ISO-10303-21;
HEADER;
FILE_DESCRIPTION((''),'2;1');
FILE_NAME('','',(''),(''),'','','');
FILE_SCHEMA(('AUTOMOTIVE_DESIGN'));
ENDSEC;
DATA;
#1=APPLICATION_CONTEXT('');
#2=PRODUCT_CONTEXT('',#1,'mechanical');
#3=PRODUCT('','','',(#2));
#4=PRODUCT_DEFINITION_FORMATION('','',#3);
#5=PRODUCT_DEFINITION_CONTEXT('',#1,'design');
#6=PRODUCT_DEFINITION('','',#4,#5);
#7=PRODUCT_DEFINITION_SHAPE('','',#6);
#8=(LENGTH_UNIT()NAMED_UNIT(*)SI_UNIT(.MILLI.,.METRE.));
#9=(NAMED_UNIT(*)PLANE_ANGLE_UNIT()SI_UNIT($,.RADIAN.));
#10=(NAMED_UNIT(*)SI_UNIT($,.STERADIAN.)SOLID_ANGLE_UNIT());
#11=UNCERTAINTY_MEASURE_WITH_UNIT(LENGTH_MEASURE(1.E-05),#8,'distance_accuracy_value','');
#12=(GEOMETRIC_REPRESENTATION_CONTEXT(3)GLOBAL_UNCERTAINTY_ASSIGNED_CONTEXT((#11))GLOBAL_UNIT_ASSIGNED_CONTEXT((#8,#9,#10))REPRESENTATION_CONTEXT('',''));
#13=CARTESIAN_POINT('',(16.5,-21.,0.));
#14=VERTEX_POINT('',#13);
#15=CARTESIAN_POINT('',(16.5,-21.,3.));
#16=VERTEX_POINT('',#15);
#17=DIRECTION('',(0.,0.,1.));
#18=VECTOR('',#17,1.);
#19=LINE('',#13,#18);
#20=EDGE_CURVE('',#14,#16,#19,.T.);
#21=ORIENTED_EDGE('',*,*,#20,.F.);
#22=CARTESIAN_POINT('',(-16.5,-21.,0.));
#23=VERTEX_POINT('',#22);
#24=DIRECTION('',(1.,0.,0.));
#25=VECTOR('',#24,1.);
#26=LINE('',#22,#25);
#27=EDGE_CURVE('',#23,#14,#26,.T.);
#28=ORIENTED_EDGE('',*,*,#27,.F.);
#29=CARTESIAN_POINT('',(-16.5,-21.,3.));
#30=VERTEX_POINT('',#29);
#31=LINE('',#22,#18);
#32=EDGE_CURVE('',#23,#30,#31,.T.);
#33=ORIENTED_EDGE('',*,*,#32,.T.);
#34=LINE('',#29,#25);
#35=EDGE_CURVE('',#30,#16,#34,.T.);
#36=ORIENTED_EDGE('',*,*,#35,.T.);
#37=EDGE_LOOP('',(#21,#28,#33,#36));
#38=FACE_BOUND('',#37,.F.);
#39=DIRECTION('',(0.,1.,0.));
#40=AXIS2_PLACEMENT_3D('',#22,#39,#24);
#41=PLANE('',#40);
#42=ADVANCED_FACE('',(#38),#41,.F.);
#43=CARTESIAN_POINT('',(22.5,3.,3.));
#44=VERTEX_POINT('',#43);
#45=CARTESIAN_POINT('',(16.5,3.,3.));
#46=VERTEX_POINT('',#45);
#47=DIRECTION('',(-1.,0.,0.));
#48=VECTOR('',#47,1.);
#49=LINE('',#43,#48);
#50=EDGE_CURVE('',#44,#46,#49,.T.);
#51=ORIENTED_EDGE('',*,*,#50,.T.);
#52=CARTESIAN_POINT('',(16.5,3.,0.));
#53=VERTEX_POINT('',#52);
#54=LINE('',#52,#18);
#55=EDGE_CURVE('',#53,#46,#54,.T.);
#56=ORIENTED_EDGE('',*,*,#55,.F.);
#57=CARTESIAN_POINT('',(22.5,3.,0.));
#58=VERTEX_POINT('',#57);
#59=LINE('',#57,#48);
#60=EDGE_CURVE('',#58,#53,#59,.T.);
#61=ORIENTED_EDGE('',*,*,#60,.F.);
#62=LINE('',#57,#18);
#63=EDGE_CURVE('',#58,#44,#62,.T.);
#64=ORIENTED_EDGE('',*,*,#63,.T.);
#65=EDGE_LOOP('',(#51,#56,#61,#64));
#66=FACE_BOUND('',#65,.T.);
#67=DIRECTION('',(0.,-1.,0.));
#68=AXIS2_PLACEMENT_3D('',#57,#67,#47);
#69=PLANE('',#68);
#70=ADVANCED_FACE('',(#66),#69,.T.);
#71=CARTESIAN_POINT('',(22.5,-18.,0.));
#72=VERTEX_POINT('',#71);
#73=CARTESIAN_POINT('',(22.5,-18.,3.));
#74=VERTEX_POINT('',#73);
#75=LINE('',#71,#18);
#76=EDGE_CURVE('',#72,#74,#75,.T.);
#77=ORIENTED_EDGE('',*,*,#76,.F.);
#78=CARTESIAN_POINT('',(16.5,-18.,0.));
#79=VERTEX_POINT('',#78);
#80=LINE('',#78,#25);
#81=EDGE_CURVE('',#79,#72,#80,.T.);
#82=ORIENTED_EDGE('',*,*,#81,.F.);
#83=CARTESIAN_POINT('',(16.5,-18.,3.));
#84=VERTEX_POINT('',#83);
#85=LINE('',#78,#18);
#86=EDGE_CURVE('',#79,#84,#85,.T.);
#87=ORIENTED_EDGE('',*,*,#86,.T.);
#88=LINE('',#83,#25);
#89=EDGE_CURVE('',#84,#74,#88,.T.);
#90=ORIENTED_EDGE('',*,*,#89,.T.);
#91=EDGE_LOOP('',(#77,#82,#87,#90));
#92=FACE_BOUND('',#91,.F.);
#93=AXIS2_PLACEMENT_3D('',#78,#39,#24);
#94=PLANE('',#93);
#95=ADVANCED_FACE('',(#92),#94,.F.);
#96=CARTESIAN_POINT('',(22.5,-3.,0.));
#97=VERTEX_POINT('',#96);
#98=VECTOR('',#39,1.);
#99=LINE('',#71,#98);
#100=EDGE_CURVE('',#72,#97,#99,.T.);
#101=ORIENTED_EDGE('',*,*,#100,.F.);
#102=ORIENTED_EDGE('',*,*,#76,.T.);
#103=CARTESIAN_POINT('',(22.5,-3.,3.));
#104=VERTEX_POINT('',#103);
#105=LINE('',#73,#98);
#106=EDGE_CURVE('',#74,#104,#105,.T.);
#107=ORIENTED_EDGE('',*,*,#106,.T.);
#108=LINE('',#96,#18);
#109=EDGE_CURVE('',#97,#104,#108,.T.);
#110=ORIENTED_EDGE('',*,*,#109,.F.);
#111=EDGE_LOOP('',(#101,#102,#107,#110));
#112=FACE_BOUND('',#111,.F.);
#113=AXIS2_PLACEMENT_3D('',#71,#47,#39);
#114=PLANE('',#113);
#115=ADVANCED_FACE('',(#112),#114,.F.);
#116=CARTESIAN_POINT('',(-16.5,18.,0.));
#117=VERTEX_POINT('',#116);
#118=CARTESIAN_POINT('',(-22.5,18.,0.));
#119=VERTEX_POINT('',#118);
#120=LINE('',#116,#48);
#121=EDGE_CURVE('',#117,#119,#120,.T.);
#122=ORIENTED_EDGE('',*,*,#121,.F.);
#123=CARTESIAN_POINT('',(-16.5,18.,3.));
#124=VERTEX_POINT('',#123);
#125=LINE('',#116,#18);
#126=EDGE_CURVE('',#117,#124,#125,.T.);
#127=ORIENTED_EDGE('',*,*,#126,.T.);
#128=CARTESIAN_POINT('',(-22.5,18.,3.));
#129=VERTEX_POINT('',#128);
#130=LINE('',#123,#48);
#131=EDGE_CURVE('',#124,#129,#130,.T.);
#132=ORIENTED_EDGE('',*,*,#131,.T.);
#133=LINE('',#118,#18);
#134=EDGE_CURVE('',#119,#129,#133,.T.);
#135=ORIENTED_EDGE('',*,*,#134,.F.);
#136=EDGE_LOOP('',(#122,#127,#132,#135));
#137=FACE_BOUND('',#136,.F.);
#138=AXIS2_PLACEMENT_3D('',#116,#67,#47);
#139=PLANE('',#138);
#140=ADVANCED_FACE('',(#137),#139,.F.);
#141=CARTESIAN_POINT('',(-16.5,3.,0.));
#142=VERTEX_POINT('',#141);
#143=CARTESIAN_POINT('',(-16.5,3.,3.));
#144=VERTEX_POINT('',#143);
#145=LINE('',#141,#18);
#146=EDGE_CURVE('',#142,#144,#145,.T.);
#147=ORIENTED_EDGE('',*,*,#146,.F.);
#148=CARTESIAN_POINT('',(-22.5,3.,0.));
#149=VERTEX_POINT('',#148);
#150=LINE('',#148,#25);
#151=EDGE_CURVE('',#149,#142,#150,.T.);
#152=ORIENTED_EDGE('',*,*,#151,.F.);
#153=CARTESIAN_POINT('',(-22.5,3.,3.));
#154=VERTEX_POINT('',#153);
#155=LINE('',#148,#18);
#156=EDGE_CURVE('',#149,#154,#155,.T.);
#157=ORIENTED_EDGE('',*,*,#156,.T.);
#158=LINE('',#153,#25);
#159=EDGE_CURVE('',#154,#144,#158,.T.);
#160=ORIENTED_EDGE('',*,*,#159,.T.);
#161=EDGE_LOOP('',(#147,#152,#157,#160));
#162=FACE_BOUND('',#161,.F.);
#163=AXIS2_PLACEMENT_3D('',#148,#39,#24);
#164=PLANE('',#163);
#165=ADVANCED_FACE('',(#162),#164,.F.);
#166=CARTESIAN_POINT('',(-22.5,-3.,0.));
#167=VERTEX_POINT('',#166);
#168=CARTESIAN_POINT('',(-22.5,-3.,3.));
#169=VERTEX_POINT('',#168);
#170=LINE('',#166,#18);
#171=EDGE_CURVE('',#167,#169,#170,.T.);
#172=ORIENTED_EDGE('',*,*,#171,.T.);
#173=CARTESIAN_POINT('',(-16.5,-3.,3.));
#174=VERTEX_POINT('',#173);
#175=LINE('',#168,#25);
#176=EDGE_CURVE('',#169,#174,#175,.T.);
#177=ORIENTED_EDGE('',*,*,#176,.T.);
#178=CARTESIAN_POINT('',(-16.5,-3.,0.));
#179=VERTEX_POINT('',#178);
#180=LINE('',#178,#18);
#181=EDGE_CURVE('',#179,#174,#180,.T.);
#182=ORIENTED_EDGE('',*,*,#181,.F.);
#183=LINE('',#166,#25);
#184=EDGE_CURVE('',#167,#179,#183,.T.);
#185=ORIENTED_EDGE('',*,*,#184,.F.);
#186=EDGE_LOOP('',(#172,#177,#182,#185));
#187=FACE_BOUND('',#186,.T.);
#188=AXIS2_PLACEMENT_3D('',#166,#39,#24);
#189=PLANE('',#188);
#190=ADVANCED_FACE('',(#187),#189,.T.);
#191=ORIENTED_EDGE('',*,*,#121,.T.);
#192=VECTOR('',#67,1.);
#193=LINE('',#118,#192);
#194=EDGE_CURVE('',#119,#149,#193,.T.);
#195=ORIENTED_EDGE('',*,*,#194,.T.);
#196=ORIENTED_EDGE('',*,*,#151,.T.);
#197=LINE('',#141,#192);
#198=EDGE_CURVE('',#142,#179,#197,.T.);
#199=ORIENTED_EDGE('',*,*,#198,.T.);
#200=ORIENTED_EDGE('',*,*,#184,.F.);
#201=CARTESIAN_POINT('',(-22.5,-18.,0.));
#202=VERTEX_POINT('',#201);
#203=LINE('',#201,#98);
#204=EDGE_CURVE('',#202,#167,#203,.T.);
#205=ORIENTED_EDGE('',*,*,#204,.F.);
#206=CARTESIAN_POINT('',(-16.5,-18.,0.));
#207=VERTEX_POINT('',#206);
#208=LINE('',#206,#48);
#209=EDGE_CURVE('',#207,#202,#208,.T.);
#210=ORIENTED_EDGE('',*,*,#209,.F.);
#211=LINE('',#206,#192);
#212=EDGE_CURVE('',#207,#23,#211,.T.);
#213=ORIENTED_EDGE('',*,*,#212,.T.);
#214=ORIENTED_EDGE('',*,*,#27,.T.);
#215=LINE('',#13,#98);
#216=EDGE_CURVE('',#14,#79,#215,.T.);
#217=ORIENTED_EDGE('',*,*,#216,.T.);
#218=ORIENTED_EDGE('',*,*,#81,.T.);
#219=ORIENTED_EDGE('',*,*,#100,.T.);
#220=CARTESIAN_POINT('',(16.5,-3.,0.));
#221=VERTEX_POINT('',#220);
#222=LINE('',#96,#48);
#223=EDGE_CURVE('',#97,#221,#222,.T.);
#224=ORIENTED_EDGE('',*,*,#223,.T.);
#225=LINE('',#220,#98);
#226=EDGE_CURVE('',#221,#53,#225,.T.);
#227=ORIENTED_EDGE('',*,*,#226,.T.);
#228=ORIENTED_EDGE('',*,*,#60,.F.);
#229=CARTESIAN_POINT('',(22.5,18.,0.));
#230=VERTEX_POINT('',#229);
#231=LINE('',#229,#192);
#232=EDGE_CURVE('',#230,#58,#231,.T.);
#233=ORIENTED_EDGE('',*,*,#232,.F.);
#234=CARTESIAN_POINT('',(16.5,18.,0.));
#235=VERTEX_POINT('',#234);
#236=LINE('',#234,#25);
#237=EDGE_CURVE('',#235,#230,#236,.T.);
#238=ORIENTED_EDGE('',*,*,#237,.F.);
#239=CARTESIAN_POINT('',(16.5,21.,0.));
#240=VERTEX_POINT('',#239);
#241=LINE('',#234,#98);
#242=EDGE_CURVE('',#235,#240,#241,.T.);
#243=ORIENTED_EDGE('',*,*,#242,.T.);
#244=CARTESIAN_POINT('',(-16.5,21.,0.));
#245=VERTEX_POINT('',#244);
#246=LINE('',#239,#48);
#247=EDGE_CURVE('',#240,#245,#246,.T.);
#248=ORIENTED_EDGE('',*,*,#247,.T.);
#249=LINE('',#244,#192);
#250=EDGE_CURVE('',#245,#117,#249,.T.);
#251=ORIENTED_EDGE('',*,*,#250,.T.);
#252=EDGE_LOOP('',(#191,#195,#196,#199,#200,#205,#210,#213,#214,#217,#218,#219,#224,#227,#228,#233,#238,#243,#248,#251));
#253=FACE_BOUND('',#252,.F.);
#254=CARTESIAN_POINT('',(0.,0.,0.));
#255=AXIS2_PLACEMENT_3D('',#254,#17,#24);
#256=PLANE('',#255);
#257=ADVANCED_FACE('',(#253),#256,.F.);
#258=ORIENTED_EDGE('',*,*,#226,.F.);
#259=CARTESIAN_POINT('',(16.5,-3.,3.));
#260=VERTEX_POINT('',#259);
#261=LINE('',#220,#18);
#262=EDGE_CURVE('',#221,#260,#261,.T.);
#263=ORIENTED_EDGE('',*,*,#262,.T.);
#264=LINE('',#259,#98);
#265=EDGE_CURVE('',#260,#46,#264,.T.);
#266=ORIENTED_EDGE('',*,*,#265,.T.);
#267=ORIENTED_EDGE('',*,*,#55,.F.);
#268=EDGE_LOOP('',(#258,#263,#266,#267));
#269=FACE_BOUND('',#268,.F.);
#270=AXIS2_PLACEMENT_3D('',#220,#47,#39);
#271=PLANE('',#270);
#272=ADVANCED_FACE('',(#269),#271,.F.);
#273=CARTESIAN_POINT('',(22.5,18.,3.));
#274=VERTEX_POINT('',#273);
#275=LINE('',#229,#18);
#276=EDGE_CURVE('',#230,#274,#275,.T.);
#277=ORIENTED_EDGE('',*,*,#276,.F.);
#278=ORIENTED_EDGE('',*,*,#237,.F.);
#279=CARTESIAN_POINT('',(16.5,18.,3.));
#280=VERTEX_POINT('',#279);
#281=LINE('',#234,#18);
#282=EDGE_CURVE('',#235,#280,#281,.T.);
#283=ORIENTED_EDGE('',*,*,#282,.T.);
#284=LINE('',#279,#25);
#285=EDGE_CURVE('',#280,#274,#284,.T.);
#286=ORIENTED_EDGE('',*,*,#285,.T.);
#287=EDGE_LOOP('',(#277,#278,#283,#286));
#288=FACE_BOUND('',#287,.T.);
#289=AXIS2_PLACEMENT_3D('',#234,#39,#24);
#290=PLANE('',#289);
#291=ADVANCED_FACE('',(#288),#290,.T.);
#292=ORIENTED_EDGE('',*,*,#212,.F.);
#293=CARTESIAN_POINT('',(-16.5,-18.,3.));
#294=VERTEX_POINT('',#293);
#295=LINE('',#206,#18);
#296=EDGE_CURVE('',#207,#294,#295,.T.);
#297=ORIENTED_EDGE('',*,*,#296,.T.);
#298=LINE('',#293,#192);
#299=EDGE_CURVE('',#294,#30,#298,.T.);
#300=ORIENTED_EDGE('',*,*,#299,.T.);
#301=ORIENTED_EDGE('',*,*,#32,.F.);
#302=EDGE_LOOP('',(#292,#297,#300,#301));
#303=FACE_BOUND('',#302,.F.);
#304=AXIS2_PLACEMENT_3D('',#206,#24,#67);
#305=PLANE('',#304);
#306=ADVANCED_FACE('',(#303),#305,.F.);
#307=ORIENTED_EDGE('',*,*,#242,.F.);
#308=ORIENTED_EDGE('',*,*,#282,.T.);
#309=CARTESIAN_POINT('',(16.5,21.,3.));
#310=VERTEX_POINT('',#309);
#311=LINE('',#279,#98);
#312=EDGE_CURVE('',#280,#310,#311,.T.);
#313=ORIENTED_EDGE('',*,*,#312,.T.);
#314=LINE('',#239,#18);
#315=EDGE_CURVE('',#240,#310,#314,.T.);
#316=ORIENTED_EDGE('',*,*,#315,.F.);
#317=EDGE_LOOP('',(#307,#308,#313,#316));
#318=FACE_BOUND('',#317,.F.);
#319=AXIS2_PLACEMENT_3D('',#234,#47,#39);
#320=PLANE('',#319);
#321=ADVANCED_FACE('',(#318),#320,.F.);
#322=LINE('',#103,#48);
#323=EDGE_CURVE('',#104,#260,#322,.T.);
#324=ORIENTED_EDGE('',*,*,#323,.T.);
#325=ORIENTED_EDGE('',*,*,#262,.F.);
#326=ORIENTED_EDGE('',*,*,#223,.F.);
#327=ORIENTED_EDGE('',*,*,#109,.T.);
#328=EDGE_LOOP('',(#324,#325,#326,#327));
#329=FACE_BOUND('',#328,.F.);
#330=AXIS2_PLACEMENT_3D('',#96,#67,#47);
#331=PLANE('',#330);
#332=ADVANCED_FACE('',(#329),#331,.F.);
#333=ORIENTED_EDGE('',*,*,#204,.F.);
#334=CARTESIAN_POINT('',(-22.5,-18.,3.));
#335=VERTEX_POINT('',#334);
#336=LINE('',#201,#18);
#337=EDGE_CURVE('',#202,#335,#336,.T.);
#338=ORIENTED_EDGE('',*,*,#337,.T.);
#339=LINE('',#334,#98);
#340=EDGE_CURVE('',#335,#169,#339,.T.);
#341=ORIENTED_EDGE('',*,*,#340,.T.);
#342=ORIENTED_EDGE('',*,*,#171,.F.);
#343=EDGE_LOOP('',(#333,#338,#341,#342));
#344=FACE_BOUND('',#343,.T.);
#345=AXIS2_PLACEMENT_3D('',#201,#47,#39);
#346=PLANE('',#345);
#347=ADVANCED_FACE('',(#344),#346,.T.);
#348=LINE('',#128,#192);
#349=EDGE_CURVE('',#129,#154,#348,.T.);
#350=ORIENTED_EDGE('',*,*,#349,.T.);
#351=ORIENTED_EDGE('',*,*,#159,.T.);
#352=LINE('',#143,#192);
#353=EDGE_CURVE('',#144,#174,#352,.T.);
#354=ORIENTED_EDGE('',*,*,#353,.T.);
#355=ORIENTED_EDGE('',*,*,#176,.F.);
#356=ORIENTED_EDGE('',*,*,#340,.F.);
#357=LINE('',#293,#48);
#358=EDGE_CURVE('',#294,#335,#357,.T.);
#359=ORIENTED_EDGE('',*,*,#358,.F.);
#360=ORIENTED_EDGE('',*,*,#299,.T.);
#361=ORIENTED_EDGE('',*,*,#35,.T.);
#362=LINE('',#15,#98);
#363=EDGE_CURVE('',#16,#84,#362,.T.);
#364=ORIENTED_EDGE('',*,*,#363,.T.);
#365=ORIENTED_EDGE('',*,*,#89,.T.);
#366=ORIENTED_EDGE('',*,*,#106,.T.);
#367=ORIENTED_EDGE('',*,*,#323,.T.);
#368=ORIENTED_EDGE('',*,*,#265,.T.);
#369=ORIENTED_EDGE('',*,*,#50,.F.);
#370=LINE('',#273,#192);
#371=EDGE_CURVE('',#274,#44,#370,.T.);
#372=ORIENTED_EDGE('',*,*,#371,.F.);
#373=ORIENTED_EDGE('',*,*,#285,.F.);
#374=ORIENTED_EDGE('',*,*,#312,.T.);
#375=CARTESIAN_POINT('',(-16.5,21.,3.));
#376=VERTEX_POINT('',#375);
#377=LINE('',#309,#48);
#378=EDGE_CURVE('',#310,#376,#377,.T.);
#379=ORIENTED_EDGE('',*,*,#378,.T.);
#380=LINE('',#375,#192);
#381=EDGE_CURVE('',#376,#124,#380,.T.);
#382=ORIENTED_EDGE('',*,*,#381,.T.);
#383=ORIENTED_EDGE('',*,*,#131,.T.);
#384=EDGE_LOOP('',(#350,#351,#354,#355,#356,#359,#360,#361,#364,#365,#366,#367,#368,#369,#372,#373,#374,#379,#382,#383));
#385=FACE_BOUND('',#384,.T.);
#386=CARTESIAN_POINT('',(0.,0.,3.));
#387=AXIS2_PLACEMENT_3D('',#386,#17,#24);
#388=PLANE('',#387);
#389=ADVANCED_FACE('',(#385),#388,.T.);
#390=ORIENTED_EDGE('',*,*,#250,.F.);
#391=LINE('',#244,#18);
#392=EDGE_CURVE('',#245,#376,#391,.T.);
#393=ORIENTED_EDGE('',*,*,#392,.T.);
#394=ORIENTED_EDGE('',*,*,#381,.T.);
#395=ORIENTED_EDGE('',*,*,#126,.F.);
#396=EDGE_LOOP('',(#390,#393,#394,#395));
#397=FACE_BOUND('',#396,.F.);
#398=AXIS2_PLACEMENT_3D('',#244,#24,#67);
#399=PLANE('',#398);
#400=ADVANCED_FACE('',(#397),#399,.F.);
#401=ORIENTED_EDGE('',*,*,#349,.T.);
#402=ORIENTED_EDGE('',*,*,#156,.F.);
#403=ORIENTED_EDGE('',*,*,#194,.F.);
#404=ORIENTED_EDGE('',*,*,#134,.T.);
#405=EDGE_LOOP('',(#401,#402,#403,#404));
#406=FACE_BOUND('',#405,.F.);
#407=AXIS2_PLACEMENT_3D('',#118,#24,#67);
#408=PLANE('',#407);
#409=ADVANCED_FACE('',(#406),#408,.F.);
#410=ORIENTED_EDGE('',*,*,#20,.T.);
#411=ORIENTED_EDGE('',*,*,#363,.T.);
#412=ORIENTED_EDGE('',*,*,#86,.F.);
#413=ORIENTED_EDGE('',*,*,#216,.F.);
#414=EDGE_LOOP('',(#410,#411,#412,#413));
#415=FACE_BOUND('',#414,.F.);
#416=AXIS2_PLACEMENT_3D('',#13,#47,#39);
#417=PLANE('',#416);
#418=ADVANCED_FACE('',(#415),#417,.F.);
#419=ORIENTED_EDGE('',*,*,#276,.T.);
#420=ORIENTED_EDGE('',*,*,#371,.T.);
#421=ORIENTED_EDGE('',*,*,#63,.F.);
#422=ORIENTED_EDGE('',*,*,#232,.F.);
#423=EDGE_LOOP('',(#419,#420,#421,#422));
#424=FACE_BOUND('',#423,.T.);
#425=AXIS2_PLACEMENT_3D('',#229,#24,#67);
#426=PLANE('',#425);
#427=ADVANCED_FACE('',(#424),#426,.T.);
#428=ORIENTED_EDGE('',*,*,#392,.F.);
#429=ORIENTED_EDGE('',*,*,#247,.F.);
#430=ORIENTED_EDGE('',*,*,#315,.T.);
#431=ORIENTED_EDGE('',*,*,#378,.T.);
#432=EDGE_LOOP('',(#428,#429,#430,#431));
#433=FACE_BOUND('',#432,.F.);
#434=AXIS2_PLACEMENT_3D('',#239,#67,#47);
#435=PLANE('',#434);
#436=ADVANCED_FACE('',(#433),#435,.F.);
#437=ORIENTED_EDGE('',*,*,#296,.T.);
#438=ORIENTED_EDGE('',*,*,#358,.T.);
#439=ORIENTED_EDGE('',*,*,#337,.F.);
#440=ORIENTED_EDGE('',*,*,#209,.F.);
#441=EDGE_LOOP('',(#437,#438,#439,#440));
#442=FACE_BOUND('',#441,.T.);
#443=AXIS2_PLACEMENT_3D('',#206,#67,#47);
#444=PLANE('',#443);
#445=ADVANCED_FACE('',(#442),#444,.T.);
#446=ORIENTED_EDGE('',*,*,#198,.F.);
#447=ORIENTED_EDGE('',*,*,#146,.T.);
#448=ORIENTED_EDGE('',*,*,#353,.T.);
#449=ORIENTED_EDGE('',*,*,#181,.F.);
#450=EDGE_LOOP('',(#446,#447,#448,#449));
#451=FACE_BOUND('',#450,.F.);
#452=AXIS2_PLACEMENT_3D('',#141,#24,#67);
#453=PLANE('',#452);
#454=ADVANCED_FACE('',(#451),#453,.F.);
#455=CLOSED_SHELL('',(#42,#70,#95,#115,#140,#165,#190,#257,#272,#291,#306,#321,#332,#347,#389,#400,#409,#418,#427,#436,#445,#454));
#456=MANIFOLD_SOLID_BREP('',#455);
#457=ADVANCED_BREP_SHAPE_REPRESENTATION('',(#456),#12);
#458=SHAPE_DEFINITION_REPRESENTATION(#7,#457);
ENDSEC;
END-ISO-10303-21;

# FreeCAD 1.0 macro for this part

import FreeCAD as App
import Part
import Sketcher
Q = App.Units.Quantity


def add_polygon(sketch, points):
    """Adds a closed chain of lines whose ends are joined by coincident constraints."""
    first, n = sketch.GeometryCount, len(points)
    for a, b in zip(points, points[1:] + points[:1]):
        sketch.addGeometry(Part.LineSegment(App.Vector(*a, 0), App.Vector(*b, 0)), False)
    for i in range(n):
        sketch.addConstraint(Sketcher.Constraint("Coincident", first + i, 2, first + (i + 1) % n, 1))

doc = App.newDocument("Part")
body = doc.addObject("PartDesign::Body", "Body")

# Sketch on XY plane
sketch1 = body.newObject("Sketcher::SketchObject", "Sketch")
sketch1.AttachmentSupport = (doc.getObject("XY_Plane"), [""])
sketch1.MapMode = "FlatFace"
add_polygon(sketch1, [(16.5, 18), (16.5, 21), (-16.5, 21), (-16.5, 18), (-22.5, 18), (-22.5, 3), (-16.5, 3), (-16.5, -3), (-22.5, -3), (-22.5, -18), (-16.5, -18), (-16.5, -21), (16.5, -21), (16.5, -18), (22.5, -18), (22.5, -3), (16.5, -3), (16.5, 3), (22.5, 3), (22.5, 18)])  # lines 0-19
sketch1.addConstraint(Sketcher.Constraint("Vertical", 0))
sketch1.addConstraint(Sketcher.Constraint("Horizontal", 1))
sketch1.addConstraint(Sketcher.Constraint("Vertical", 2))
sketch1.addConstraint(Sketcher.Constraint("Horizontal", 3))
sketch1.addConstraint(Sketcher.Constraint("Vertical", 4))
sketch1.addConstraint(Sketcher.Constraint("Horizontal", 5))
sketch1.addConstraint(Sketcher.Constraint("Vertical", 6))
sketch1.addConstraint(Sketcher.Constraint("Horizontal", 7))
sketch1.addConstraint(Sketcher.Constraint("Vertical", 8))
sketch1.addConstraint(Sketcher.Constraint("Horizontal", 9))
sketch1.addConstraint(Sketcher.Constraint("Vertical", 10))
sketch1.addConstraint(Sketcher.Constraint("Horizontal", 11))
sketch1.addConstraint(Sketcher.Constraint("Vertical", 12))
sketch1.addConstraint(Sketcher.Constraint("Horizontal", 13))
sketch1.addConstraint(Sketcher.Constraint("Vertical", 14))
sketch1.addConstraint(Sketcher.Constraint("Horizontal", 15))
sketch1.addConstraint(Sketcher.Constraint("Vertical", 16))
sketch1.addConstraint(Sketcher.Constraint("Horizontal", 17))
sketch1.addConstraint(Sketcher.Constraint("Vertical", 18))
sketch1.addConstraint(Sketcher.Constraint("Horizontal", 19))
sketch1.addConstraint(Sketcher.Constraint("Symmetric", 0, 2, 10, 2, -1, 1))
sketch1.addConstraint(Sketcher.Constraint("Symmetric", 2, 2, 12, 2, -1, 1))
sketch1.addConstraint(Sketcher.Constraint("Symmetric", 4, 2, 14, 2, -1, 1))
sketch1.addConstraint(Sketcher.Constraint("Symmetric", 6, 2, 16, 2, -1, 1))
sketch1.addConstraint(Sketcher.Constraint("Symmetric", 8, 2, 18, 2, -1, 1))
sketch1.addConstraint(Sketcher.Constraint("Symmetric", 9, 2, 12, 2, -2))
sketch1.addConstraint(Sketcher.Constraint("Symmetric", 7, 2, 14, 2, -2))
sketch1.addConstraint(Sketcher.Constraint("Vertical", 2, 2, 5, 2))
sketch1.addConstraint(Sketcher.Constraint("Equal", 19, 6))
sketch1.addConstraint(Sketcher.Constraint("DistanceX", 1, 2, 1, 1, Q("33 mm")))
sketch1.addConstraint(Sketcher.Constraint("DistanceX", 3, 2, 3, 1, Q("6 mm")))
sketch1.addConstraint(Sketcher.Constraint("DistanceY", 0, 1, 0, 2, Q("3 mm")))
sketch1.addConstraint(Sketcher.Constraint("DistanceY", 4, 2, 4, 1, Q("15 mm")))
pad1 = body.newObject("PartDesign::Pad", "Pad")
pad1.Profile = sketch1
pad1.Length = 3

doc.recompute()
